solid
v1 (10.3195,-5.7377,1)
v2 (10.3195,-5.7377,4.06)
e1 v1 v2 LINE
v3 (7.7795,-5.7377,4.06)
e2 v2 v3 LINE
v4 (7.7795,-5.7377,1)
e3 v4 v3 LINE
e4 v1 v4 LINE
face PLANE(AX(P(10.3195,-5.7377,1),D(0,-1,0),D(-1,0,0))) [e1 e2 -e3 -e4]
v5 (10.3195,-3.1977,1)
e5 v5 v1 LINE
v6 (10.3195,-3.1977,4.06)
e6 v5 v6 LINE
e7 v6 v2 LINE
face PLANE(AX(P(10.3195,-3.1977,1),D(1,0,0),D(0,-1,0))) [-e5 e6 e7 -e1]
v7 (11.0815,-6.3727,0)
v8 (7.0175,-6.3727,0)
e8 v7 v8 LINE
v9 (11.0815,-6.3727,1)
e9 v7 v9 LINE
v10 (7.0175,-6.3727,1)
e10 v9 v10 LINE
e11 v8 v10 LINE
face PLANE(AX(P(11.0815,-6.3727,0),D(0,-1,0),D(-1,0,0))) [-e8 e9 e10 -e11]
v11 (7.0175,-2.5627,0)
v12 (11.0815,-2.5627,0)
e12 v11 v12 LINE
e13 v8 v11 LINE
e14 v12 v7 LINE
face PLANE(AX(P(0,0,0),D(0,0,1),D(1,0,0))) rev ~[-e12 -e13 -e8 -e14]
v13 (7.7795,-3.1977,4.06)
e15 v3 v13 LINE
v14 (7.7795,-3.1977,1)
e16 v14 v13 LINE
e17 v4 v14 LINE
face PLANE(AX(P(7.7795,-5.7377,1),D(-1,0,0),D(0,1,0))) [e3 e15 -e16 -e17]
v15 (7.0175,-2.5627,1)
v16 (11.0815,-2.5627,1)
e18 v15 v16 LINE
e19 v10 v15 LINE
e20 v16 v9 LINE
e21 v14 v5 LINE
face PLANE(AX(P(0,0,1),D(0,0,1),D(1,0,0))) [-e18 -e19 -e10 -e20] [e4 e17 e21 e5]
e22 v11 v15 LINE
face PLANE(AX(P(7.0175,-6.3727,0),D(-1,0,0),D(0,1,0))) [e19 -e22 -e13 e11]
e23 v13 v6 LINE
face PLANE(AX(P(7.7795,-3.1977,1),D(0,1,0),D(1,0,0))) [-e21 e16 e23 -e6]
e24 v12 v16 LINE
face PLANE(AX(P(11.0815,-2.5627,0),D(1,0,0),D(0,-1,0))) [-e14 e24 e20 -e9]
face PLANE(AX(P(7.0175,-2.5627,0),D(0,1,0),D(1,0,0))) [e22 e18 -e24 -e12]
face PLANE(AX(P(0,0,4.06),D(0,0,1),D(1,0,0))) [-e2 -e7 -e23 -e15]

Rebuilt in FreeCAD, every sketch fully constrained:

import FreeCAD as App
import Part
import Sketcher
Q = App.Units.Quantity


def add_polygon(sketch, points):
    """Adds a closed chain of lines whose ends are joined by coincident constraints."""
    first, n = sketch.GeometryCount, len(points)
    for a, b in zip(points, points[1:] + points[:1]):
        sketch.addGeometry(Part.LineSegment(App.Vector(*a, 0), App.Vector(*b, 0)), False)
    for i in range(n):
        sketch.addConstraint(Sketcher.Constraint("Coincident", first + i, 2, first + (i + 1) % n, 1))

doc = App.newDocument("Part")
params = doc.addObject("Spreadsheet::Sheet", "Params")
for row, (alias, value) in enumerate([
    ("sketch1_width", "0.16 in"),
    ("sketch1_height", "0.15 in"),
    ("pad1_length", "1 mm"),
    ("sketch2_width", "0.1 in"),
    ("pad2_length", "3.06 mm"),
], start=1):
    params.set(f"A{row}", alias)
    params.set(f"B{row}", "=" + value)
    params.setAlias(f"B{row}", alias)

body = doc.addObject("PartDesign::Body", "Body")

# Sketch on XY plane
sketch1 = body.newObject("Sketcher::SketchObject", "Sketch")
sketch1.AttachmentSupport = (doc.getObject("XY_Plane"), [""])
sketch1.MapMode = "FlatFace"
add_polygon(sketch1, [(11.1, -2.6), (7, -2.6), (7, -6.4), (11.1, -6.4)])  # lines 0-3
sketch1.addConstraint(Sketcher.Constraint("Horizontal", 0))
sketch1.addConstraint(Sketcher.Constraint("Vertical", 1))
sketch1.addConstraint(Sketcher.Constraint("Horizontal", 2))
sketch1.addConstraint(Sketcher.Constraint("Vertical", 3))
sketch1.addConstraint(Sketcher.Constraint("DistanceX", 0, 2, 0, 1, Q("0.16 in")))
sketch1.addConstraint(Sketcher.Constraint("DistanceY", 1, 2, 1, 1, Q("0.15 in")))
sketch1.addConstraint(Sketcher.Constraint("DistanceY", 0, 2, -1, 1, Q("0.1009 in")))
sketch1.addConstraint(Sketcher.Constraint("DistanceX", -1, 1, 0, 2, Q("7.0175 mm")))
sketch1.setExpression("Constraints[8]", "Params.sketch1_width")
sketch1.setExpression("Constraints[9]", "Params.sketch1_height")
pad1 = body.newObject("PartDesign::Pad", "Pad")
pad1.Profile = sketch1
pad1.setExpression("Length", "Params.pad1_length")

# Sketch on XY plane
sketch2 = body.newObject("Sketcher::SketchObject", "Sketch001")
sketch2.AttachmentSupport = (doc.getObject("XY_Plane"), [""])
sketch2.MapMode = "FlatFace"
sketch2.AttachmentOffset = App.Placement(App.Vector(0, 0, 1), App.Rotation())
add_polygon(sketch2, [(10.3, -3.2), (7.8, -3.2), (7.8, -5.7), (10.3, -5.7)])  # lines 0-3
sketch2.addConstraint(Sketcher.Constraint("Horizontal", 0))
sketch2.addConstraint(Sketcher.Constraint("Vertical", 1))
sketch2.addConstraint(Sketcher.Constraint("Horizontal", 2))
sketch2.addConstraint(Sketcher.Constraint("Vertical", 3))
sketch2.addConstraint(Sketcher.Constraint("Equal", 2, 1))
sketch2.addConstraint(Sketcher.Constraint("DistanceX", 0, 2, 0, 1, Q("0.1 in")))
sketch2.addConstraint(Sketcher.Constraint("DistanceY", 0, 2, -1, 1, Q("0.1259 in")))
sketch2.addConstraint(Sketcher.Constraint("DistanceX", -1, 1, 0, 2, Q("7.7795 mm")))
sketch2.setExpression("Constraints[9]", "Params.sketch2_width")
pad2 = body.newObject("PartDesign::Pad", "Pad001")
pad2.Profile = sketch2
pad2.setExpression("Length", "Params.pad2_length")

doc.recompute()
